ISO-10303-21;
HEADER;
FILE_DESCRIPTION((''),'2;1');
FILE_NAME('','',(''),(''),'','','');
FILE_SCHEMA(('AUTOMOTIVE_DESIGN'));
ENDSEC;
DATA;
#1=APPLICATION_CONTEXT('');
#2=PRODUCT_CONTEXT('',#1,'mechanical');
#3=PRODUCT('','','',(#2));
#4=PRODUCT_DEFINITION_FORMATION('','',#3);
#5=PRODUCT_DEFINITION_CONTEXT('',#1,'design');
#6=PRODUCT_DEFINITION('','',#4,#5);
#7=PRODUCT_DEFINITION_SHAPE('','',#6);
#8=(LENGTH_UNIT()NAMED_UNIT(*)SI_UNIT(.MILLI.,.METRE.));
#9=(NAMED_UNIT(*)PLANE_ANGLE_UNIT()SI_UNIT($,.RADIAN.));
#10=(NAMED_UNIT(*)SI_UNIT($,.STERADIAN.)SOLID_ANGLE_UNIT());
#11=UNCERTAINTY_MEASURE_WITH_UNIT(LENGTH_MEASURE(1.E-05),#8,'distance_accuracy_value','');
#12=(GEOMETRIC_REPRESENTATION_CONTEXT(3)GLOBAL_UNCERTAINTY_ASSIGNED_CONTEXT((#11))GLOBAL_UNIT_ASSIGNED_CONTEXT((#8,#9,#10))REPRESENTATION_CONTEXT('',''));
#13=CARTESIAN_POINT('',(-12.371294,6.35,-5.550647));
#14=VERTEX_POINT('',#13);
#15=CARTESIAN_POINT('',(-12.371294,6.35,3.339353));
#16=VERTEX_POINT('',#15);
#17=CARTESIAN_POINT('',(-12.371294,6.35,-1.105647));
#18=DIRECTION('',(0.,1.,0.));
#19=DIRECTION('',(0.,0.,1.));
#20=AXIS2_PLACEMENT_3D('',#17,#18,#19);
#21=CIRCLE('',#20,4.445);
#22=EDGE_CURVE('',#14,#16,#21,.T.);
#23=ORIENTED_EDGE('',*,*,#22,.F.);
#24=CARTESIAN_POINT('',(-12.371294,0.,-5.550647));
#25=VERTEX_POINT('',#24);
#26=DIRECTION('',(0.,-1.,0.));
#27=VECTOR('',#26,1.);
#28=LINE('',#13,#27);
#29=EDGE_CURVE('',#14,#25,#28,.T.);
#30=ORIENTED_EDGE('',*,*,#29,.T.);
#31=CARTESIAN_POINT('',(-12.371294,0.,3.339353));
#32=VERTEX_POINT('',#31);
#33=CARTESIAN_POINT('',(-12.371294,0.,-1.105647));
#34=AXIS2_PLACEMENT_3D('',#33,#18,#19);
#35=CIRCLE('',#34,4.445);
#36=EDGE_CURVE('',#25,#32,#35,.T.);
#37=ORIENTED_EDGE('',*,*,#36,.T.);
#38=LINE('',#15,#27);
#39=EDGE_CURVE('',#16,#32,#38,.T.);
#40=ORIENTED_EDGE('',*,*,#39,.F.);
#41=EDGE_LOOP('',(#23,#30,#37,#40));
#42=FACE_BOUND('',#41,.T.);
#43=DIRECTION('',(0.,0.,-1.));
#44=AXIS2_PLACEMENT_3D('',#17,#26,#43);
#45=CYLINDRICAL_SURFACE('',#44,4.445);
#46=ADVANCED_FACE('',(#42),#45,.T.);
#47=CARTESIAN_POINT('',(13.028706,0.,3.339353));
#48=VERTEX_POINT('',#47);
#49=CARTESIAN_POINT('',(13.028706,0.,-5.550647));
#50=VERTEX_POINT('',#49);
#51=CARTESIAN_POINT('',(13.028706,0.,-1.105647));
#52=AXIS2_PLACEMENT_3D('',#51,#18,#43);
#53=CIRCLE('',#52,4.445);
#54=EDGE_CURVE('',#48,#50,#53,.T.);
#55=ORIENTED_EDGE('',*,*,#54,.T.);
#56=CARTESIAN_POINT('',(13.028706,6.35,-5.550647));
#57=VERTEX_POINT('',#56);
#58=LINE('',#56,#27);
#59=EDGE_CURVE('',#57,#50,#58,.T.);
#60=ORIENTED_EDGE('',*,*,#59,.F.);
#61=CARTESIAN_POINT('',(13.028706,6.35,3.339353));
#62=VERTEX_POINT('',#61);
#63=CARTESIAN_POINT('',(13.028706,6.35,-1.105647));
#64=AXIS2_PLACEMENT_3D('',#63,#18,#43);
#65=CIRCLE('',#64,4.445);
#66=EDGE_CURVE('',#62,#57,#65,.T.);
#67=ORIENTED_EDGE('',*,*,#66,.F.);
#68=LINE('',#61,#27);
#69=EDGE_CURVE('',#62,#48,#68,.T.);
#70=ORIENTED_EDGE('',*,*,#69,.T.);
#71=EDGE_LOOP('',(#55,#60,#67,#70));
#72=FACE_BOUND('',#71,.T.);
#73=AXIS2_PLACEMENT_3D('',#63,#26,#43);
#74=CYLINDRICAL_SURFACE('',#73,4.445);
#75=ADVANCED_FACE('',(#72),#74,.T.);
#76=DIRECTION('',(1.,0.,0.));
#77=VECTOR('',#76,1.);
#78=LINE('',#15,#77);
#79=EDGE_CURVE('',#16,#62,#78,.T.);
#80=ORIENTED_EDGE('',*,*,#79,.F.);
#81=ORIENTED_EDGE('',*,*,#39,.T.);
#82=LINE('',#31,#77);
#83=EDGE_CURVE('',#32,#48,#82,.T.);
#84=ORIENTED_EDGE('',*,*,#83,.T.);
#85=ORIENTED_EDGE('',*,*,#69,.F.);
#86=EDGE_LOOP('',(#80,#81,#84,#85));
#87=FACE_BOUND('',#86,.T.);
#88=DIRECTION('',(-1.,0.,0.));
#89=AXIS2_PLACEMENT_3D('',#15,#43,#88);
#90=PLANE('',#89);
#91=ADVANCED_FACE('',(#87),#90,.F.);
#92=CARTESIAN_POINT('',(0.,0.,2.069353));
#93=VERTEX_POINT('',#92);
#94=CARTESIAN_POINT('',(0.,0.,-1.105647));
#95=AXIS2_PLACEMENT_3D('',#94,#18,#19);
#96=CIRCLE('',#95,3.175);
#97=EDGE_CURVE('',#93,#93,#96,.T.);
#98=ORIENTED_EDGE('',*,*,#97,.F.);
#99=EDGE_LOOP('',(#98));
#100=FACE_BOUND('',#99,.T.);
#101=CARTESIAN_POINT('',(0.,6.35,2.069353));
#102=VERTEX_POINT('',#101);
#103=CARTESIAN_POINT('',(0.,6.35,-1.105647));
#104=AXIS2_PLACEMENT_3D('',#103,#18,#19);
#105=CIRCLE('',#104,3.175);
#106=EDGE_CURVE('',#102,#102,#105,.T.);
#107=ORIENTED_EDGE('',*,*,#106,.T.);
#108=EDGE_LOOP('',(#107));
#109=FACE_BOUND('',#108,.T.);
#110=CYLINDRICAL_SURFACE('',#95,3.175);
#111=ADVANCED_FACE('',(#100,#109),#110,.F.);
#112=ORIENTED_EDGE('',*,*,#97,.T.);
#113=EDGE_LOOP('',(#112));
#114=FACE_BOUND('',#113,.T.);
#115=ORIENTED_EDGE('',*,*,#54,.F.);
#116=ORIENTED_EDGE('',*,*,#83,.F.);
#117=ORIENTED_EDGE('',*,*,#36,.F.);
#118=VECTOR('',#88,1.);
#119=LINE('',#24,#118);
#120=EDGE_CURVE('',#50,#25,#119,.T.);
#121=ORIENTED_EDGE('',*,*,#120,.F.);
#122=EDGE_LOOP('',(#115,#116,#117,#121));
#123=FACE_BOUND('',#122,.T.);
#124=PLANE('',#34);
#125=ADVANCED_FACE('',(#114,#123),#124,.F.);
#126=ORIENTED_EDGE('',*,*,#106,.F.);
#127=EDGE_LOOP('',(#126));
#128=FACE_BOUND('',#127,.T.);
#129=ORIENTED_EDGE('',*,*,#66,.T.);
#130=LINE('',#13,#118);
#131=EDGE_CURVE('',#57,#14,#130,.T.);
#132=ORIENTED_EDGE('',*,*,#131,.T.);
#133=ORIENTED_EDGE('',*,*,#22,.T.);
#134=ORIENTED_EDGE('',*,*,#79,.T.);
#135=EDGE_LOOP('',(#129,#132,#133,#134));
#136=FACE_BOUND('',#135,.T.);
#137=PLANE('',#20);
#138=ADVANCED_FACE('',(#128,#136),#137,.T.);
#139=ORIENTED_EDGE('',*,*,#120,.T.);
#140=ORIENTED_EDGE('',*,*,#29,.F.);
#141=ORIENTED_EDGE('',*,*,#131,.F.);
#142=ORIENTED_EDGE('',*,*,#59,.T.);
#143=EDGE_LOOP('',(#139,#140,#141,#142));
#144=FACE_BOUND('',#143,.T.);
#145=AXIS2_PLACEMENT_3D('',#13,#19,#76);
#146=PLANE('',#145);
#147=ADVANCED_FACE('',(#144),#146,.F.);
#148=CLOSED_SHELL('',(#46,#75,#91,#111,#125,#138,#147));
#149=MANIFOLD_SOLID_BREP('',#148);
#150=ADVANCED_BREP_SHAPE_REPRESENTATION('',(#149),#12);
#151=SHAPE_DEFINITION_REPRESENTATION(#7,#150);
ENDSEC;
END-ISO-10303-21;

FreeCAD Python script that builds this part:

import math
import FreeCAD as App
import Part
import Sketcher
from FreeCAD import Vector
Q = App.Units.Quantity

doc = App.newDocument("Part")
params = doc.addObject("Spreadsheet::Sheet", "Params")
for row, (alias, value) in enumerate([
    ("sketch1_width", "1 in"),
    ("sketch1_radius", "0.175 in"),
    ("pad1_length", "0.25 in"),
    ("sketch2_diameter", "0.25 in"),
    ("pocket1_length", "0.25 in"),
], start=1):
    params.set(f"A{row}", alias)
    params.set(f"B{row}", "=" + value)
    params.setAlias(f"B{row}", alias)

body = doc.addObject("PartDesign::Body", "Body")

sketch1 = body.newObject("Sketcher::SketchObject", "Sketch")
sketch1.AttachmentSupport = (doc.getObject("XZ_Plane"), [""])
sketch1.MapMode = "FlatFace"
sketch1.addGeometry([
    Part.LineSegment(Vector(13, -5.6, 0), Vector(-12.4, -5.6, 0)),
    Part.ArcOfCircle(Part.Circle(Vector(-12.4, -1.1, 0), Vector(0, 0, 1), 4.4), math.radians(90), math.radians(270)),
    Part.LineSegment(Vector(-12.4, 3.3, 0), Vector(13, 3.3, 0)),
    Part.ArcOfCircle(Part.Circle(Vector(13, -1.1, 0), Vector(0, 0, 1), 4.4), math.radians(-90), math.radians(90)),
], False)
sketch1.addConstraint([
    Sketcher.Constraint("Tangent", 0, 2, 1, 2),
    Sketcher.Constraint("Tangent", 1, 1, 2, 1),
    Sketcher.Constraint("Tangent", 2, 2, 3, 2),
    Sketcher.Constraint("Tangent", 3, 1, 0, 1),
    Sketcher.Constraint("Horizontal", 0),
    Sketcher.Constraint("Horizontal", 2),
    Sketcher.Constraint("DistanceX", 0, 2, 0, 1, Q("1 in")),
    Sketcher.Constraint("Radius", 1, Q("0.175 in")),
    Sketcher.Constraint("DistanceX", 1, 3, -1, 1, 12.371294),
    Sketcher.Constraint("DistanceY", 1, 3, -1, 1, 1.105647),
])
sketch1.setExpression("Constraints[6]", "Params.sketch1_width")
sketch1.setExpression("Constraints[7]", "Params.sketch1_radius")
pad1 = body.newObject("PartDesign::Pad", "Pad")
pad1.Profile = sketch1
pad1.setExpression("Length", "Params.pad1_length")
pad1.Reversed = True

sketch2 = body.newObject("Sketcher::SketchObject", "Sketch001")
sketch2.AttachmentSupport = (doc.getObject("XZ_Plane"), [""])
sketch2.MapMode = "FlatFace"
sketch2.AttachmentOffset = App.Placement(Vector(0, 0, -0.25 * 25.4), App.Rotation())
sketch2.addGeometry(Part.Circle(Vector(0, -1.1, 0), Vector(0, 0, 1), 3.2), False)
sketch2.addConstraint([
    Sketcher.Constraint("PointOnObject", 0, 3, -2),
    Sketcher.Constraint("Diameter", 0, Q("0.25 in")),
    Sketcher.Constraint("DistanceY", 0, 3, -1, 1, 1.105647),
])
sketch2.setExpression("Constraints[1]", "Params.sketch2_diameter")
pocket1 = body.newObject("PartDesign::Pocket", "Pocket")
pocket1.Profile = sketch2
pocket1.setExpression("Length", "Params.pocket1_length")
pocket1.Reversed = True

doc.recompute()
